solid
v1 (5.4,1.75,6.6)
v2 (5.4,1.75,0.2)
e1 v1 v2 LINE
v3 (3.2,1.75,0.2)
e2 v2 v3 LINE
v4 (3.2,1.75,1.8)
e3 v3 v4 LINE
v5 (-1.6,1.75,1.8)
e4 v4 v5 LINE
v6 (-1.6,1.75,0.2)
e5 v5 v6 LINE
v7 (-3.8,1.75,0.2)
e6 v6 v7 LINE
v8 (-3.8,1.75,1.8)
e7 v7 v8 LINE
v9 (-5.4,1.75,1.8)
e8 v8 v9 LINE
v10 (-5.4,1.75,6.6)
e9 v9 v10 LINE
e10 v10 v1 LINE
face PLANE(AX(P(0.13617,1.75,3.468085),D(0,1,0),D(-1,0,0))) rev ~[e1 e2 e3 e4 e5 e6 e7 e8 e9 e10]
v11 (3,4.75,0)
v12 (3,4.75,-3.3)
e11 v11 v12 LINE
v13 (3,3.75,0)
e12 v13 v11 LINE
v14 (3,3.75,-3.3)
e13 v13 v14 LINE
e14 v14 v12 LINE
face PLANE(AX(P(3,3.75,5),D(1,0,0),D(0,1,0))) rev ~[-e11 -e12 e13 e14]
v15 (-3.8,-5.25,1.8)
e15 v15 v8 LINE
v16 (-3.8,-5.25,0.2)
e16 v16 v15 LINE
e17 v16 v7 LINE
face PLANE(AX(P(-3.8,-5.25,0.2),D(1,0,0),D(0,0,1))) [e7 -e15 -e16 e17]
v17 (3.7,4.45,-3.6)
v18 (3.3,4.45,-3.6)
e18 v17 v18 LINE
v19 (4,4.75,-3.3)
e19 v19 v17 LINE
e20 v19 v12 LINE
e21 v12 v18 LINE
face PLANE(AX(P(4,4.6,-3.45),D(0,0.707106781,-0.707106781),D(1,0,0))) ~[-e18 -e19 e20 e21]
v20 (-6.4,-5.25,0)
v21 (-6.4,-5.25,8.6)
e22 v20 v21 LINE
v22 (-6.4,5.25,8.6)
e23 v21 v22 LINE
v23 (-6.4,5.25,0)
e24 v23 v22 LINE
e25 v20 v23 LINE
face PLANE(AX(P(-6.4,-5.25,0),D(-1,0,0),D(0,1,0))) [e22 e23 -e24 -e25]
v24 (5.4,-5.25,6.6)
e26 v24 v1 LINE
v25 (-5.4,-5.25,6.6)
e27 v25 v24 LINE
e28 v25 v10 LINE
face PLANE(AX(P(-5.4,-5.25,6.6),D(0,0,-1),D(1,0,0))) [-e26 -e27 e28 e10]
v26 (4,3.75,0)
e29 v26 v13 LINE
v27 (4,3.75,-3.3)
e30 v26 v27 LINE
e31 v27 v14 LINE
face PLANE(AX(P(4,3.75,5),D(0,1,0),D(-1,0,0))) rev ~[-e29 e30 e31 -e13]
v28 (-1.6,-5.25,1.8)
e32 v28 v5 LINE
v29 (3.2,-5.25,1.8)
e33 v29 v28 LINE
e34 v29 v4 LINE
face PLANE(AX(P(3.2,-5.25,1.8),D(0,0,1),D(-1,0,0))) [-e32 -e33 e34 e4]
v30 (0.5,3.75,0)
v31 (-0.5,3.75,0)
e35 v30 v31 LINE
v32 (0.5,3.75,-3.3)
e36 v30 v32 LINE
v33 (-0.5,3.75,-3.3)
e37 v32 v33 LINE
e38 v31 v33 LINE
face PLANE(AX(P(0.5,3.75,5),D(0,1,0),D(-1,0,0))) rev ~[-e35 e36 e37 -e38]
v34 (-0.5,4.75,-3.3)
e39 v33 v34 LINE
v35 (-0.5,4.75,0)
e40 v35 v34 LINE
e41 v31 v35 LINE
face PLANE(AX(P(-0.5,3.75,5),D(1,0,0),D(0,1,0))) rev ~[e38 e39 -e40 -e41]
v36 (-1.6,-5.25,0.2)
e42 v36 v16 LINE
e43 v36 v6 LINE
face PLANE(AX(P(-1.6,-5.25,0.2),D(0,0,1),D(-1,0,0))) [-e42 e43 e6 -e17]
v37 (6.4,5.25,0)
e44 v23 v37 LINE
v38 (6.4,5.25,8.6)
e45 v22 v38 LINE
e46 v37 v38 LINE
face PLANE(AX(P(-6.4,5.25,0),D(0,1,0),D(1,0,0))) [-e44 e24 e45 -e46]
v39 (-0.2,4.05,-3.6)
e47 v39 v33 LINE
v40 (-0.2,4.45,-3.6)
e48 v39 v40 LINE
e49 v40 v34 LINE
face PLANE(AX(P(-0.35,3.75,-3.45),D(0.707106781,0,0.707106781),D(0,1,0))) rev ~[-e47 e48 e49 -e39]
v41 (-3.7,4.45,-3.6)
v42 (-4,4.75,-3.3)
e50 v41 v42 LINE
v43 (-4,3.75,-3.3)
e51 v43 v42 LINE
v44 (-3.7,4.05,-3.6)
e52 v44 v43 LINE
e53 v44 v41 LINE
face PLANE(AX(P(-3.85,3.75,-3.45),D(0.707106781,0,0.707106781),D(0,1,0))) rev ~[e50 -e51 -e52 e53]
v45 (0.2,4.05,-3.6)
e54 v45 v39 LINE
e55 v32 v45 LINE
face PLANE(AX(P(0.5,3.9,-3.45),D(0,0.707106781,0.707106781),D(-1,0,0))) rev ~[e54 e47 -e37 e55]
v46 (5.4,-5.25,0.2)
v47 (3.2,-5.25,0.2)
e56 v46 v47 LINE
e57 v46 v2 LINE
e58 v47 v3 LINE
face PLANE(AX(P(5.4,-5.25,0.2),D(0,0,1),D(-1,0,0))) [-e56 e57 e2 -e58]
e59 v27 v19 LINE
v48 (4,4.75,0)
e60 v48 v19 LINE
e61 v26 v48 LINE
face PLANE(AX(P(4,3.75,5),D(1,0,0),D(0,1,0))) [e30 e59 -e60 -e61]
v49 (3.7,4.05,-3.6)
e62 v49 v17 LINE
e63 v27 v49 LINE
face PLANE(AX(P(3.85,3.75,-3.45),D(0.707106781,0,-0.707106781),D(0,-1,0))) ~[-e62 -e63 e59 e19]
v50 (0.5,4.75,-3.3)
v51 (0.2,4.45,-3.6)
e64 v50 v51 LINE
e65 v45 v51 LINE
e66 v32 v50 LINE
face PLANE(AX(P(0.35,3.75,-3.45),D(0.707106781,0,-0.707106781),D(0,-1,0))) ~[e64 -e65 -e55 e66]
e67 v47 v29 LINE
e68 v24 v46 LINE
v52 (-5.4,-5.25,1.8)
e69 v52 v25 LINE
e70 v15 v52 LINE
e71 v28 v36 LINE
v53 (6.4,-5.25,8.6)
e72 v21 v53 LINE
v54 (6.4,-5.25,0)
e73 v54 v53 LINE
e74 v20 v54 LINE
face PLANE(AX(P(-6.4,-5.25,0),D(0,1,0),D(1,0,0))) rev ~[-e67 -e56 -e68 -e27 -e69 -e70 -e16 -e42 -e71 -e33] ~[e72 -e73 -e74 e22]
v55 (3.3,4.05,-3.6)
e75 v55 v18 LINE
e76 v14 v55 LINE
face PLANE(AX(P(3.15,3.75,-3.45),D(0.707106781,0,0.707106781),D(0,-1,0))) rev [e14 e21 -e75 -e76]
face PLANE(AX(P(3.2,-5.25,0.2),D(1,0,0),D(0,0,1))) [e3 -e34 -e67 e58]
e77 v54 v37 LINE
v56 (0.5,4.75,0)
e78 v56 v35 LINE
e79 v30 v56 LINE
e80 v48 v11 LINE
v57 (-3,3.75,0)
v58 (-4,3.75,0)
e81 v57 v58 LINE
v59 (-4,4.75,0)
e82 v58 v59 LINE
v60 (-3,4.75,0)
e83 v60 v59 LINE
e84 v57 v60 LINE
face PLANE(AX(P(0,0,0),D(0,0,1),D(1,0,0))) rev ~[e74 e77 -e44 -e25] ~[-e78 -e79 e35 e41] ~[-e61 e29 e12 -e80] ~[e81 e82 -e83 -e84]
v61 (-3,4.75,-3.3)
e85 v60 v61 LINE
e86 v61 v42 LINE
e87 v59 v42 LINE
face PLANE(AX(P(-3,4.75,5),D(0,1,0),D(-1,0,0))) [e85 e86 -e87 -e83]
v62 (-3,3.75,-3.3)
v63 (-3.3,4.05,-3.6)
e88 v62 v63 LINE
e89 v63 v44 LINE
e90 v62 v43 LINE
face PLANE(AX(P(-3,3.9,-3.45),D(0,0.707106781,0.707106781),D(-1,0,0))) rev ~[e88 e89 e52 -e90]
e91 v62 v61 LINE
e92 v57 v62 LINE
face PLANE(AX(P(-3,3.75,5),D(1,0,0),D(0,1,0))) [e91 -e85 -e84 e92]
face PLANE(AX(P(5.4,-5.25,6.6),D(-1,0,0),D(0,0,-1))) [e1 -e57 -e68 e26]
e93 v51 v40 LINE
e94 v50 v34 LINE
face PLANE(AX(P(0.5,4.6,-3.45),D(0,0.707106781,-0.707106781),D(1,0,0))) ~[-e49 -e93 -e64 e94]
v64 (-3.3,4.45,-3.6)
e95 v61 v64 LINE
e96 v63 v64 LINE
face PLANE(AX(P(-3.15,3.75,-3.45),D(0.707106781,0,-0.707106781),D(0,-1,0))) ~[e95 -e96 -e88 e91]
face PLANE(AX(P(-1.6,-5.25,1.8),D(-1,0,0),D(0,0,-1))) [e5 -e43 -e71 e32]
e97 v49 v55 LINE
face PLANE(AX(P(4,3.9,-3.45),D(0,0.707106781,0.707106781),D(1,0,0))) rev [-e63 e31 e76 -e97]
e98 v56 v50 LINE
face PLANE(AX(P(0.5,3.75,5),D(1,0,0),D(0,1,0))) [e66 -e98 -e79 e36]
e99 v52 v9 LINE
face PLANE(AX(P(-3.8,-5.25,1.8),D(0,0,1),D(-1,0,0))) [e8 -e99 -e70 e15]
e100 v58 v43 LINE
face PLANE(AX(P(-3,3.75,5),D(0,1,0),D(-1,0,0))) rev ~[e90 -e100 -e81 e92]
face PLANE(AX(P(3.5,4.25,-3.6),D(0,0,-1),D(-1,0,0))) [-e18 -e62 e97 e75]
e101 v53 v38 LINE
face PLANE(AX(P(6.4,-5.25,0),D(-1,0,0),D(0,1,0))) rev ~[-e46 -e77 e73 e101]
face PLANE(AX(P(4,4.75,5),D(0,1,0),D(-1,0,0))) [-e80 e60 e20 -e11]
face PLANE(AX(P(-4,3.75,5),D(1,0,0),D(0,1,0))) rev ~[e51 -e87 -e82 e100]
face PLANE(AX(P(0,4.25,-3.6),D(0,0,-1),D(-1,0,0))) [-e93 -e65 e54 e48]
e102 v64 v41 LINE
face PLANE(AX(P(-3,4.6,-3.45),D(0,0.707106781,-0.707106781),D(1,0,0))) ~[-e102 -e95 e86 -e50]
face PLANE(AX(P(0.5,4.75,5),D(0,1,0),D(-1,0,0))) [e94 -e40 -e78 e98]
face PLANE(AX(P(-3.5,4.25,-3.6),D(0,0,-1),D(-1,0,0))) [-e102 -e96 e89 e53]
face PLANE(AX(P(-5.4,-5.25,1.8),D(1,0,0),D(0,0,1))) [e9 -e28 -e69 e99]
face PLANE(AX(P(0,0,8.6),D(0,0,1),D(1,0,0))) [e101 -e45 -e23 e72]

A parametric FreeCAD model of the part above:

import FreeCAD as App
import Part
import Sketcher
Q = App.Units.Quantity


def edges_at(feature, points):
    """Names of the edges that pass closest to the given points."""
    edges = feature.Shape.Edges
    near = lambda p: min(range(len(edges)), key=lambda i: edges[i].distToShape(Part.Vertex(*p))[0])
    return sorted({f"Edge{near(p) + 1}" for p in points})

doc = App.newDocument("Part")
params = doc.addObject("Spreadsheet::Sheet", "Params")
for row, (alias, value) in enumerate([
    ("sketch1_width", "12.8 mm"),
    ("sketch1_height", "10.5 mm"),
    ("pad1_length", "8.6 mm"),
    ("sketch2_width", "10.8 mm"),
    ("sketch2_width2", "1.6 mm"),
    ("sketch2_width3", "2.2 mm"),
    ("pocket1_length", "7 mm"),
    ("sketch3_width", "1 mm"),
    ("pad2_length", "8.6 mm"),
    ("chamfer_size", "0.3 mm"),
    ("linearpattern_pitch", "3.5 mm"),
    ("chamfer2_size", "0.3 mm"),
], start=1):
    params.set(f"A{row}", alias)
    params.set(f"B{row}", "=" + value)
    params.setAlias(f"B{row}", alias)

body = doc.addObject("PartDesign::Body", "Body")

# Sketch on XY plane
sketch1 = body.newObject("Sketcher::SketchObject", "Sketch")
sketch1.AttachmentSupport = (doc.getObject("XY_Plane"), [""])
sketch1.MapMode = "FlatFace"
sketch1.addGeometry([
    Part.LineSegment(App.Vector(-6.4, 5.25, 0), App.Vector(-6.4, -5.25, 0)),
    Part.LineSegment(App.Vector(-6.4, -5.25, 0), App.Vector(6.4, -5.25, 0)),
    Part.LineSegment(App.Vector(6.4, -5.25, 0), App.Vector(6.4, 5.25, 0)),
    Part.LineSegment(App.Vector(6.4, 5.25, 0), App.Vector(-6.4, 5.25, 0)),
], False)
sketch1.addConstraint([
    Sketcher.Constraint("Coincident", 0, 2, 1, 1),
    Sketcher.Constraint("Coincident", 1, 2, 2, 1),
    Sketcher.Constraint("Coincident", 2, 2, 3, 1),
    Sketcher.Constraint("Coincident", 3, 2, 0, 1),
    Sketcher.Constraint("Vertical", 0),
    Sketcher.Constraint("Horizontal", 1),
    Sketcher.Constraint("Vertical", 2),
    Sketcher.Constraint("Horizontal", 3),
    Sketcher.Constraint("Symmetric", 0, 2, 2, 2, -1, 1),
    Sketcher.Constraint("DistanceX", 1, 1, 1, 2, Q("12.8 mm")),
    Sketcher.Constraint("DistanceY", 0, 2, 0, 1, Q("10.5 mm")),
])
sketch1.setExpression("Constraints[9]", "Params.sketch1_width")
sketch1.setExpression("Constraints[10]", "Params.sketch1_height")
pad1 = body.newObject("PartDesign::Pad", "Pad")
pad1.Profile = sketch1
pad1.setExpression("Length", "Params.pad1_length")

# Sketch on XZ plane
sketch2 = body.newObject("Sketcher::SketchObject", "Sketch001")
sketch2.AttachmentSupport = (doc.getObject("XZ_Plane"), [""])
sketch2.MapMode = "FlatFace"
sketch2.AttachmentOffset = App.Placement(App.Vector(0, 0, 5.25), App.Rotation())
sketch2.addGeometry([
    Part.LineSegment(App.Vector(5.4, 6.6, 0), App.Vector(-5.4, 6.6, 0)),  # 0
    Part.LineSegment(App.Vector(-5.4, 6.6, 0), App.Vector(-5.4, 1.8, 0)),  # 1
    Part.LineSegment(App.Vector(-5.4, 1.8, 0), App.Vector(-3.8, 1.8, 0)),  # 2
    Part.LineSegment(App.Vector(-3.8, 1.8, 0), App.Vector(-3.8, 0.2, 0)),  # 3
    Part.LineSegment(App.Vector(-3.8, 0.2, 0), App.Vector(-1.6, 0.2, 0)),  # 4
    Part.LineSegment(App.Vector(-1.6, 0.2, 0), App.Vector(-1.6, 1.8, 0)),  # 5
    Part.LineSegment(App.Vector(-1.6, 1.8, 0), App.Vector(3.2, 1.8, 0)),  # 6
    Part.LineSegment(App.Vector(3.2, 1.8, 0), App.Vector(3.2, 0.2, 0)),  # 7
    Part.LineSegment(App.Vector(3.2, 0.2, 0), App.Vector(5.4, 0.2, 0)),  # 8
    Part.LineSegment(App.Vector(5.4, 0.2, 0), App.Vector(5.4, 6.6, 0)),  # 9
], False)
sketch2.addConstraint([
    Sketcher.Constraint("Coincident", 0, 2, 1, 1),
    Sketcher.Constraint("Coincident", 1, 2, 2, 1),
    Sketcher.Constraint("Coincident", 2, 2, 3, 1),
    Sketcher.Constraint("Coincident", 3, 2, 4, 1),
    Sketcher.Constraint("Coincident", 4, 2, 5, 1),
    Sketcher.Constraint("Coincident", 5, 2, 6, 1),
    Sketcher.Constraint("Coincident", 6, 2, 7, 1),
    Sketcher.Constraint("Coincident", 7, 2, 8, 1),
    Sketcher.Constraint("Coincident", 8, 2, 9, 1),
    Sketcher.Constraint("Coincident", 9, 2, 0, 1),
    Sketcher.Constraint("Horizontal", 0),
    Sketcher.Constraint("Vertical", 1),
    Sketcher.Constraint("Horizontal", 2),
    Sketcher.Constraint("Vertical", 3),
    Sketcher.Constraint("Horizontal", 4),
    Sketcher.Constraint("Vertical", 5),
    Sketcher.Constraint("Horizontal", 6),
    Sketcher.Constraint("Vertical", 7),
    Sketcher.Constraint("Horizontal", 8),
    Sketcher.Constraint("Vertical", 9),
    Sketcher.Constraint("Horizontal", 2, 2, 5, 2),
    Sketcher.Constraint("Horizontal", 4, 2, 7, 2),
    Sketcher.Constraint("Equal", 4, 8),
    Sketcher.Constraint("Equal", 6, 1),
    Sketcher.Constraint("Equal", 2, 3),
    Sketcher.Constraint("DistanceX", 0, 2, 0, 1, Q("10.8 mm")),
    Sketcher.Constraint("DistanceX", 2, 1, 2, 2, Q("1.6 mm")),
    Sketcher.Constraint("DistanceX", 4, 1, 4, 2, Q("2.2 mm")),
    Sketcher.Constraint("DistanceX", 0, 2, -1, 1, Q("5.4 mm")),
    Sketcher.Constraint("DistanceY", -1, 1, 0, 2, Q("6.6 mm")),
])
sketch2.setExpression("Constraints[25]", "Params.sketch2_width")
sketch2.setExpression("Constraints[26]", "Params.sketch2_width2")
sketch2.setExpression("Constraints[27]", "Params.sketch2_width3")
pocket1 = body.newObject("PartDesign::Pocket", "Pocket")
pocket1.Profile = sketch2
pocket1.setExpression("Length", "Params.pocket1_length")

# Sketch on XY plane
sketch3 = body.newObject("Sketcher::SketchObject", "Sketch002")
sketch3.AttachmentSupport = (doc.getObject("XY_Plane"), [""])
sketch3.MapMode = "FlatFace"
sketch3.AttachmentOffset = App.Placement(App.Vector(0, 0, 5), App.Rotation())
sketch3.addGeometry([
    Part.LineSegment(App.Vector(-3, 4.75, 0), App.Vector(-3, 3.75, 0)),
    Part.LineSegment(App.Vector(-3, 3.75, 0), App.Vector(-4, 3.75, 0)),
    Part.LineSegment(App.Vector(-4, 3.75, 0), App.Vector(-4, 4.75, 0)),
    Part.LineSegment(App.Vector(-4, 4.75, 0), App.Vector(-3, 4.75, 0)),
], False)
sketch3.addConstraint([
    Sketcher.Constraint("Coincident", 0, 2, 1, 1),
    Sketcher.Constraint("Coincident", 1, 2, 2, 1),
    Sketcher.Constraint("Coincident", 2, 2, 3, 1),
    Sketcher.Constraint("Coincident", 3, 2, 0, 1),
    Sketcher.Constraint("Vertical", 0),
    Sketcher.Constraint("Horizontal", 1),
    Sketcher.Constraint("Vertical", 2),
    Sketcher.Constraint("Horizontal", 3),
    Sketcher.Constraint("Equal", 3, 0),
    Sketcher.Constraint("DistanceX", 1, 2, 1, 1, Q("1 mm")),
    Sketcher.Constraint("DistanceX", 0, 2, -1, 1, Q("3 mm")),
    Sketcher.Constraint("DistanceY", -1, 1, 0, 2, Q("3.75 mm")),
])
sketch3.setExpression("Constraints[9]", "Params.sketch3_width")
pad2 = body.newObject("PartDesign::Pad", "Pad001")
pad2.Profile = sketch3
pad2.setExpression("Length", "Params.pad2_length")
pad2.Reversed = True
doc.recompute()

chamfer = body.newObject("PartDesign::Chamfer", "Chamfer")
chamfer.Base = (pad2, edges_at(pad2, [
    (-3, 4.25, -3.6),
    (-3.5, 3.75, -3.6),
    (-4, 4.25, -3.6),
    (-3.5, 4.75, -3.6),
]))
chamfer.setExpression("Size", "Params.chamfer_size")
doc.recompute()

linearpattern = body.newObject("PartDesign::LinearPattern", "LinearPattern")
linearpattern.Originals = [pad2]
linearpattern.Direction = (doc.getObject("X_Axis"), [""])
linearpattern.Mode = "offset"
linearpattern.setExpression("Offset", "Params.linearpattern_pitch")
linearpattern.Occurrences = 3
body.Tip = linearpattern
doc.recompute()

chamfer2 = body.newObject("PartDesign::Chamfer", "Chamfer001")
chamfer2.Base = (linearpattern, edges_at(linearpattern, [
    (0.5, 4.25, -3.6),
    (0, 3.75, -3.6),
    (-0.5, 4.25, -3.6),
    (0, 4.75, -3.6),
    (4, 4.25, -3.6),
    (3.5, 3.75, -3.6),
    (3, 4.25, -3.6),
    (3.5, 4.75, -3.6),
]))
chamfer2.setExpression("Size", "Params.chamfer2_size")

doc.recompute()
